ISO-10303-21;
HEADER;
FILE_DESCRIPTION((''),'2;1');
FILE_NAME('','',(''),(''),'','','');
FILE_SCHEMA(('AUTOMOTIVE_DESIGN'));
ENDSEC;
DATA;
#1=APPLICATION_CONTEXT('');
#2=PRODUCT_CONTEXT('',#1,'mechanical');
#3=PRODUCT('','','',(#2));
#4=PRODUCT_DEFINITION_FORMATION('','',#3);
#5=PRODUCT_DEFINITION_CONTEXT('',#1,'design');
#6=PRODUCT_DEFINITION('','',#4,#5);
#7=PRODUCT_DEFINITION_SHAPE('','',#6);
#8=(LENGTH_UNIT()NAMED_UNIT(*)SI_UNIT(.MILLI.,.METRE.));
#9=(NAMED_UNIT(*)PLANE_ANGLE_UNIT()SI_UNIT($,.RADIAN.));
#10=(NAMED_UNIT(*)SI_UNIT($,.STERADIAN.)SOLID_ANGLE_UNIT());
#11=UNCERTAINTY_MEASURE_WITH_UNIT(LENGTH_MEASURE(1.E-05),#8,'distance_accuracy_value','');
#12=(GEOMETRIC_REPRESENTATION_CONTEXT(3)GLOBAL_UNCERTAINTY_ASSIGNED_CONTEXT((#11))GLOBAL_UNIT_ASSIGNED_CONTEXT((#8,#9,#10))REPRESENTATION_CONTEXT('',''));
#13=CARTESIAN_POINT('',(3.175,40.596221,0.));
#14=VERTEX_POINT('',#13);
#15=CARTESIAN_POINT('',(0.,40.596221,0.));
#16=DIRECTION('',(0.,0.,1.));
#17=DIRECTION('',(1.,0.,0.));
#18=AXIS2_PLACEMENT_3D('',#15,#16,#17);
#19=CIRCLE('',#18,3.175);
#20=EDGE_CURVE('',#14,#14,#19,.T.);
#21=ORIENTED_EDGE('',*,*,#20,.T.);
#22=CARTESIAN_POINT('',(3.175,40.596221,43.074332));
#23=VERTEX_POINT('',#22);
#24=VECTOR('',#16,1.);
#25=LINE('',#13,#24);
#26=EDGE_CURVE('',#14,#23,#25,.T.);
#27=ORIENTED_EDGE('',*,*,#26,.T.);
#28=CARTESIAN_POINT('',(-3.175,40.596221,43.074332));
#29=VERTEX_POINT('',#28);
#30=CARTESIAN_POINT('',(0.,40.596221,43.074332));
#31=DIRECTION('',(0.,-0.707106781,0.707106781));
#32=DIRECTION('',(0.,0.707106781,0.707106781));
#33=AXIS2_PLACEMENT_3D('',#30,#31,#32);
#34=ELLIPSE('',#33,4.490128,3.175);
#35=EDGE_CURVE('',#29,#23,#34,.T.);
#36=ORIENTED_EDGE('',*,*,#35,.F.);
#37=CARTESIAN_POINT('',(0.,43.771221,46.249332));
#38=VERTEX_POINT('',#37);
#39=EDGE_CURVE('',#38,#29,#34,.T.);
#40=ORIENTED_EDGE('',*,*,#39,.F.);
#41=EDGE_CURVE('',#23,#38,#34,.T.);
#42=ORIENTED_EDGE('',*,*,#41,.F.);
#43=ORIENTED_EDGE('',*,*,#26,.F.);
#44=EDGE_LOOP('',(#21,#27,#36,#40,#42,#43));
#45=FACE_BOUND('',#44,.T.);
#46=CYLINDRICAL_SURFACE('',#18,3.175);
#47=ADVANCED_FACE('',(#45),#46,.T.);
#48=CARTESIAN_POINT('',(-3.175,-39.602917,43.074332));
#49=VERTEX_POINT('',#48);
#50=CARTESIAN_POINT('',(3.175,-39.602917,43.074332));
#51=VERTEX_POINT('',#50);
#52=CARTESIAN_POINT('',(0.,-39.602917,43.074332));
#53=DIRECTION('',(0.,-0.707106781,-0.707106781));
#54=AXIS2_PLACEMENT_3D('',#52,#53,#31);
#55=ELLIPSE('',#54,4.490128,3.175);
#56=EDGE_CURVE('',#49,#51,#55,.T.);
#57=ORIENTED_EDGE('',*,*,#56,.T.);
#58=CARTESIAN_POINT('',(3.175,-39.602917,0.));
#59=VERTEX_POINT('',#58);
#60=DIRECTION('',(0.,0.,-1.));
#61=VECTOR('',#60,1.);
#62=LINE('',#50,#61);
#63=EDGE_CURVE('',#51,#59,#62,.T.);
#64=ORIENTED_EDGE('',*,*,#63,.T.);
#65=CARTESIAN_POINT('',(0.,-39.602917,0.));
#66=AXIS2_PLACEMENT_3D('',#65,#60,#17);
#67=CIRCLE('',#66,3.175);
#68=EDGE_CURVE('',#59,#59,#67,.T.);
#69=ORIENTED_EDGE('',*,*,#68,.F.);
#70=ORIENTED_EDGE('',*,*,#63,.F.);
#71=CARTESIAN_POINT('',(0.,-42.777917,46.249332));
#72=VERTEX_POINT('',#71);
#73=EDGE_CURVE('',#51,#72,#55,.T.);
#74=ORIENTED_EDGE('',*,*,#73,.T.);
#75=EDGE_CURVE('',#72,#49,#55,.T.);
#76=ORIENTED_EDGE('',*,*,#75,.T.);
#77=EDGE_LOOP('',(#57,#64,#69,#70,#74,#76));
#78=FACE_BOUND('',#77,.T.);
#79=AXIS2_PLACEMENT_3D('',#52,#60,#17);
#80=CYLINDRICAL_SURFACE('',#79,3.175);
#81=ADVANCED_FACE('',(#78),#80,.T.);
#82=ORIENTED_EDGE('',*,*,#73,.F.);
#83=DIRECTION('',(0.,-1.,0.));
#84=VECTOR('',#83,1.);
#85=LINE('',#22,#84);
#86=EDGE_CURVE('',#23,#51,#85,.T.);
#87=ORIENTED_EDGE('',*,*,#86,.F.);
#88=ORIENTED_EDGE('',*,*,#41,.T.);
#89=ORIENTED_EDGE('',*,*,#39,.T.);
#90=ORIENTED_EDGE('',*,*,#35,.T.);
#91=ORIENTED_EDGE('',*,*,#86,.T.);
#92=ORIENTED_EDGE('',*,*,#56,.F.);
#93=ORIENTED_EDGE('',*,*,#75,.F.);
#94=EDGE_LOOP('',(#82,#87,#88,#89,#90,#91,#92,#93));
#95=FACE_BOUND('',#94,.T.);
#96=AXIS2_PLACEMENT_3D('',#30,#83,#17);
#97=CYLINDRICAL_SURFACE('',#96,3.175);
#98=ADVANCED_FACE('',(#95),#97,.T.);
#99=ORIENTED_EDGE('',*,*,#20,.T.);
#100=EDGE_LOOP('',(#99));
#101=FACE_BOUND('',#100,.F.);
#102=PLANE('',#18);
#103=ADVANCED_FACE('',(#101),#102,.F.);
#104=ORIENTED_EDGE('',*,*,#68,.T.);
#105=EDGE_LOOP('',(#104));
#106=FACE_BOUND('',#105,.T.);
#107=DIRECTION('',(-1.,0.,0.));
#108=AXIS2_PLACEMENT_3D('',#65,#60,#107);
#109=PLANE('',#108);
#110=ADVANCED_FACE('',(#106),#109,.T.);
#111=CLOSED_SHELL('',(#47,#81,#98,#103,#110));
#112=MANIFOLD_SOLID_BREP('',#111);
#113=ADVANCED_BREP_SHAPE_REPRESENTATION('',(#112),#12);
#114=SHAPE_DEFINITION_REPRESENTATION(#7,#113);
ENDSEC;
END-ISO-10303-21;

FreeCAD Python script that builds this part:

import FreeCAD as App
import Part
import Sketcher

V = App.Vector
Q = App.Units.Quantity

doc = App.newDocument("Part")
body = doc.addObject("PartDesign::Body", "Body")

# Sketch on XY plane
sketch1 = body.newObject("Sketcher::SketchObject", "Sketch")
sketch1.AttachmentSupport = (doc.getObject("XY_Plane"), [""])
sketch1.MapMode = "FlatFace"
sketch1.addGeometry(Part.Circle(V(0, 40.6, 0), V(0, 0, 1), 3.2), False)
sketch1.addConstraint(Sketcher.Constraint("PointOnObject", 0, 3, -2))
sketch1.addConstraint(Sketcher.Constraint("Diameter", 0, Q("0.25 in")))
sketch1.addConstraint(Sketcher.Constraint("DistanceY", -1, 1, 0, 3, Q("40.596221 mm")))

# Sketch on YZ plane
sketch2 = body.newObject("Sketcher::SketchObject", "Sketch001")
sketch2.AttachmentSupport = (doc.getObject("YZ_Plane"), [""])
sketch2.MapMode = "FlatFace"
sketch2.addGeometry(Part.LineSegment(V(41, 0, 0), V(41, 43, 0)), False)
sketch2.addGeometry(Part.LineSegment(V(41, 43, 0), V(-40, 43, 0)), False)
sketch2.addGeometry(Part.LineSegment(V(-40, 43, 0), V(-40, 0, 0)), False)
sketch2.addConstraint(Sketcher.Constraint("Coincident", 0, 2, 1, 1))
sketch2.addConstraint(Sketcher.Constraint("Coincident", 1, 2, 2, 1))
sketch2.addConstraint(Sketcher.Constraint("Vertical", 0))
sketch2.addConstraint(Sketcher.Constraint("Horizontal", 1))
sketch2.addConstraint(Sketcher.Constraint("Vertical", 2))
sketch2.addConstraint(Sketcher.Constraint("PointOnObject", 0, 1, -1))
sketch2.addConstraint(Sketcher.Constraint("PointOnObject", 2, 2, -1))
sketch2.addConstraint(Sketcher.Constraint("DistanceX", 1, 2, 1, 1, Q("80.199137 mm")))
sketch2.addConstraint(Sketcher.Constraint("DistanceY", 0, 1, 0, 2, Q("43.074332 mm")))
sketch2.addConstraint(Sketcher.Constraint("DistanceX", -1, 1, 0, 1, Q("40.596221 mm")))
doc.recompute()

additivepipe = body.newObject("PartDesign::AdditivePipe", "AdditivePipe")
additivepipe.Profile = sketch1
additivepipe.Spine = (sketch2, ["Edge1", "Edge2", "Edge3"])
additivepipe.Transition = "Right corner"

doc.recompute()
